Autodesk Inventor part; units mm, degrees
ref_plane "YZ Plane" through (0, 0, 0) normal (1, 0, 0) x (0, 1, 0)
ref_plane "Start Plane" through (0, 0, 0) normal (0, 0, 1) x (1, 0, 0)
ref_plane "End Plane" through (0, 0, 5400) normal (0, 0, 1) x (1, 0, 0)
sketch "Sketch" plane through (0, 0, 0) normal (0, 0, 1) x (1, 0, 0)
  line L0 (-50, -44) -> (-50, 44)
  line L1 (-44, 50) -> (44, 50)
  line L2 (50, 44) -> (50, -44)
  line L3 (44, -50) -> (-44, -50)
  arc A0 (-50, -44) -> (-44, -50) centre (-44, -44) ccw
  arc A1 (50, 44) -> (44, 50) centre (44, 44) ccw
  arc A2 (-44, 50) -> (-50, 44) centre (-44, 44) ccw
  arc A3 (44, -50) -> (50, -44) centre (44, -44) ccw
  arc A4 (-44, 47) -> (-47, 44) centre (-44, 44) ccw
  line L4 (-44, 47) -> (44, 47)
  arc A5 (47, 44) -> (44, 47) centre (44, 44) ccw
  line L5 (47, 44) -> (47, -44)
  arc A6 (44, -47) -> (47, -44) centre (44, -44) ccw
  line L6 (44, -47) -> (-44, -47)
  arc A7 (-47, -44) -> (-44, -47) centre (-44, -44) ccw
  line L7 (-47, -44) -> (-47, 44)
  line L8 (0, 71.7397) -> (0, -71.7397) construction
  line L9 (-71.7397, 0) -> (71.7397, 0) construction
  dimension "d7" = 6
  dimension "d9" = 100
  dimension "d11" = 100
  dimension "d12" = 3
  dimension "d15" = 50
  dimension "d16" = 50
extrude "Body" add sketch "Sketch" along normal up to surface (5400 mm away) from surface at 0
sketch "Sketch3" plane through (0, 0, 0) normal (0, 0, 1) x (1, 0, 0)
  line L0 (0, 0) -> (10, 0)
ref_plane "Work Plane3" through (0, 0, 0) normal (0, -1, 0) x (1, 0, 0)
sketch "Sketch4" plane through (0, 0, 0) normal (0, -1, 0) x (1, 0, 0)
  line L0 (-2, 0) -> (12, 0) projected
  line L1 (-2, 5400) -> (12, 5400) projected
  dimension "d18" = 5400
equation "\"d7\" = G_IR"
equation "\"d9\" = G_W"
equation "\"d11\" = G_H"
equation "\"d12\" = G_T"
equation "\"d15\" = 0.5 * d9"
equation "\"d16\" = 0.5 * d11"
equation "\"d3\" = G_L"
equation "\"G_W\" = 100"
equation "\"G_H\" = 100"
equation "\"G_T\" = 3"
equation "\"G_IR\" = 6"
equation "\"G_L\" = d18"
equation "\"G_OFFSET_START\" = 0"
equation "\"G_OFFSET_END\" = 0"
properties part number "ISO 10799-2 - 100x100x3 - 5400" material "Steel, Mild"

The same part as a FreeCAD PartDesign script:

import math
import FreeCAD as App
import Part
import Sketcher

doc = App.newDocument("Part")
body = doc.addObject("PartDesign::Body", "Body")

# Sketch on XY plane
sketch1 = doc.addObject("Sketcher::SketchObject", "Sketch")
body.addObject(sketch1)
sketch1.AttachmentSupport = (doc.XY_Plane, [""])
sketch1.MapMode = "FlatFace"
sketch1.addGeometry([
    Part.LineSegment(App.Vector(-50, 44, 0), App.Vector(-50, -44, 0)),  # 0
    Part.ArcOfCircle(Part.Circle(App.Vector(-44, -44, 0), App.Vector(0, 0, 1), 6), math.radians(180), math.radians(270)),  # 1
    Part.LineSegment(App.Vector(-44, -50, 0), App.Vector(44, -50, 0)),  # 2
    Part.ArcOfCircle(Part.Circle(App.Vector(44, -44, 0), App.Vector(0, 0, 1), 6), math.radians(-90), math.radians(0)),  # 3
    Part.LineSegment(App.Vector(50, -44, 0), App.Vector(50, 44, 0)),  # 4
    Part.ArcOfCircle(Part.Circle(App.Vector(44, 44, 0), App.Vector(0, 0, 1), 6), math.radians(0), math.radians(90)),  # 5
    Part.LineSegment(App.Vector(44, 50, 0), App.Vector(-44, 50, 0)),  # 6
    Part.ArcOfCircle(Part.Circle(App.Vector(-44, 44, 0), App.Vector(0, 0, 1), 6), math.radians(90), math.radians(180)),  # 7
    Part.ArcOfCircle(Part.Circle(App.Vector(-44, 44, 0), App.Vector(0, 0, 1), 3), math.radians(90), math.radians(180)),  # 8
    Part.LineSegment(App.Vector(-44, 47, 0), App.Vector(44, 47, 0)),  # 9
    Part.ArcOfCircle(Part.Circle(App.Vector(44, 44, 0), App.Vector(0, 0, 1), 3), math.radians(0), math.radians(90)),  # 10
    Part.LineSegment(App.Vector(47, 44, 0), App.Vector(47, -44, 0)),  # 11
    Part.ArcOfCircle(Part.Circle(App.Vector(44, -44, 0), App.Vector(0, 0, 1), 3), math.radians(-90), math.radians(0)),  # 12
    Part.LineSegment(App.Vector(44, -47, 0), App.Vector(-44, -47, 0)),  # 13
    Part.ArcOfCircle(Part.Circle(App.Vector(-44, -44, 0), App.Vector(0, 0, 1), 3), math.radians(180), math.radians(270)),  # 14
    Part.LineSegment(App.Vector(-47, -44, 0), App.Vector(-47, 44, 0)),  # 15
], False)
sketch1.addConstraint([
    Sketcher.Constraint("Tangent", 0, 2, 1, 1),
    Sketcher.Constraint("Tangent", 1, 2, 2, 1),
    Sketcher.Constraint("Tangent", 2, 2, 3, 1),
    Sketcher.Constraint("Tangent", 3, 2, 4, 1),
    Sketcher.Constraint("Tangent", 4, 2, 5, 1),
    Sketcher.Constraint("Tangent", 5, 2, 6, 1),
    Sketcher.Constraint("Tangent", 6, 2, 7, 1),
    Sketcher.Constraint("Tangent", 7, 2, 0, 1),
    Sketcher.Constraint("Tangent", 8, 1, 9, 1),
    Sketcher.Constraint("Tangent", 9, 2, 10, 2),
    Sketcher.Constraint("Tangent", 10, 1, 11, 1),
    Sketcher.Constraint("Tangent", 11, 2, 12, 2),
    Sketcher.Constraint("Tangent", 12, 1, 13, 1),
    Sketcher.Constraint("Tangent", 13, 2, 14, 2),
    Sketcher.Constraint("Tangent", 14, 1, 15, 1),
    Sketcher.Constraint("Tangent", 15, 2, 8, 2),
    Sketcher.Constraint("Vertical", 0),
    Sketcher.Constraint("Horizontal", 2),
    Sketcher.Constraint("Vertical", 4),
    Sketcher.Constraint("Horizontal", 6),
    Sketcher.Constraint("Horizontal", 9),
    Sketcher.Constraint("Vertical", 11),
    Sketcher.Constraint("Horizontal", 13),
    Sketcher.Constraint("Vertical", 15),
    Sketcher.Constraint("Coincident", 8, 3, 7, 3),
    Sketcher.Constraint("Coincident", 10, 3, 5, 3),
    Sketcher.Constraint("Coincident", 12, 3, 3, 3),
    Sketcher.Constraint("Equal", 1, 3),
    Sketcher.Constraint("Equal", 3, 5),
    Sketcher.Constraint("Equal", 5, 7),
    Sketcher.Constraint("Equal", 12, 14),
    Sketcher.Constraint("Symmetric", 1, 3, 5, 3, -1, 1),
    Sketcher.Constraint("Equal", 13, 0),
    Sketcher.Constraint("Radius", 1, 6.0),
    Sketcher.Constraint("Radius", 8, 3.0),
    Sketcher.Constraint("DistanceX", 0, 2, -1, 1, 50.0),
])
pad1 = doc.addObject("PartDesign::Pad", "Pad")
body.addObject(pad1)
pad1.Profile = sketch1
pad1.Length = 5400

doc.recompute()
